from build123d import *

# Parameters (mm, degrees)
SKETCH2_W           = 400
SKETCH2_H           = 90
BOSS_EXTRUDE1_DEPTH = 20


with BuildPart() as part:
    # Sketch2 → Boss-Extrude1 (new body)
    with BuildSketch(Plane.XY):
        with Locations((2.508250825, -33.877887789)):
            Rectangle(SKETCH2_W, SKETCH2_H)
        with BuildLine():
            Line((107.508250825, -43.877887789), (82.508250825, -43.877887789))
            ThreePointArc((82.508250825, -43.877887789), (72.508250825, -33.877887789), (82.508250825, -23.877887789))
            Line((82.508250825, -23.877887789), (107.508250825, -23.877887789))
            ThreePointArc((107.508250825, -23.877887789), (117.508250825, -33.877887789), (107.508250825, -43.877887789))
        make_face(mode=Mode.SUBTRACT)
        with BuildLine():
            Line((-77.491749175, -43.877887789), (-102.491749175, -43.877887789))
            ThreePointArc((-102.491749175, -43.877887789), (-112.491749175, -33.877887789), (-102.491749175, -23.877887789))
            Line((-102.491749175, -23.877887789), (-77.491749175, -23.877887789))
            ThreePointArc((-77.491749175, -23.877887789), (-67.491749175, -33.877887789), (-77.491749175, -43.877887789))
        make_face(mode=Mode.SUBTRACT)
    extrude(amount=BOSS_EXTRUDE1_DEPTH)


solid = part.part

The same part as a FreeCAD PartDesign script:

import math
import FreeCAD as App
import Part
import Sketcher


def add_polygon(sketch, points):
    """Adds a closed chain of lines whose ends are joined by coincident constraints."""
    first, n = sketch.GeometryCount, len(points)
    for a, b in zip(points, points[1:] + points[:1]):
        sketch.addGeometry(Part.LineSegment(App.Vector(*a, 0), App.Vector(*b, 0)), False)
    for i in range(n):
        sketch.addConstraint(Sketcher.Constraint("Coincident", first + i, 2, first + (i + 1) % n, 1))

doc = App.newDocument("Part")
params = doc.addObject("Spreadsheet::Sheet", "Params")
for row, (alias, value) in enumerate([
    ("sketch1_radius", "10 mm"),
    ("sketch1_width", "400 mm"),
    ("sketch1_width2", "25 mm"),
    ("sketch1_height", "90 mm"),
    ("pad1_length", "20 mm"),
], start=1):
    params.set(f"A{row}", alias)
    params.set(f"B{row}", "=" + value)
    params.setAlias(f"B{row}", alias)

body = doc.addObject("PartDesign::Body", "Body")

# Sketch on XY plane
sketch1 = body.newObject("Sketcher::SketchObject", "Sketch")
sketch1.AttachmentSupport = (doc.getObject("XY_Plane"), [""])
sketch1.MapMode = "FlatFace"
add_polygon(sketch1, [(-197.491749, 11.122112), (-197.491749, -78.877888), (202.508251, -78.877888), (202.508251, 11.122112)])  # lines 0-3
sketch1.addGeometry(Part.ArcOfCircle(Part.Circle(App.Vector(-77.491749, -33.877888, 0), App.Vector(0, 0, 1), 10), math.radians(-90), math.radians(90)), False)  # 4
sketch1.addGeometry(Part.LineSegment(App.Vector(-77.491749, -43.877888, 0), App.Vector(-102.491749, -43.877888, 0)), False)  # 5
sketch1.addGeometry(Part.ArcOfCircle(Part.Circle(App.Vector(-102.491749, -33.877888, 0), App.Vector(0, 0, 1), 10), math.radians(90), math.radians(270)), False)  # 6
sketch1.addGeometry(Part.LineSegment(App.Vector(-102.491749, -23.877888, 0), App.Vector(-77.491749, -23.877888, 0)), False)  # 7
sketch1.addGeometry(Part.ArcOfCircle(Part.Circle(App.Vector(107.508251, -33.877888, 0), App.Vector(0, 0, 1), 10), math.radians(-90), math.radians(90)), False)  # 8
sketch1.addGeometry(Part.LineSegment(App.Vector(107.508251, -43.877888, 0), App.Vector(82.508251, -43.877888, 0)), False)  # 9
sketch1.addGeometry(Part.ArcOfCircle(Part.Circle(App.Vector(82.508251, -33.877888, 0), App.Vector(0, 0, 1), 10), math.radians(90), math.radians(270)), False)  # 10
sketch1.addGeometry(Part.LineSegment(App.Vector(82.508251, -23.877888, 0), App.Vector(107.508251, -23.877888, 0)), False)  # 11
sketch1.addConstraint([
    Sketcher.Constraint("Tangent", 4, 1, 5, 1),
    Sketcher.Constraint("Tangent", 5, 2, 6, 2),
    Sketcher.Constraint("Tangent", 6, 1, 7, 1),
    Sketcher.Constraint("Tangent", 7, 2, 4, 2),
    Sketcher.Constraint("Tangent", 8, 1, 9, 1),
    Sketcher.Constraint("Tangent", 9, 2, 10, 2),
    Sketcher.Constraint("Tangent", 10, 1, 11, 1),
    Sketcher.Constraint("Tangent", 11, 2, 8, 2),
    Sketcher.Constraint("Vertical", 0),
    Sketcher.Constraint("Horizontal", 1),
    Sketcher.Constraint("Vertical", 2),
    Sketcher.Constraint("Horizontal", 3),
    Sketcher.Constraint("Horizontal", 5),
    Sketcher.Constraint("Horizontal", 7),
    Sketcher.Constraint("Horizontal", 9),
    Sketcher.Constraint("Horizontal", 11),
    Sketcher.Constraint("Equal", 6, 8),
    Sketcher.Constraint("Horizontal", 6, 3, 8, 3),
    Sketcher.Constraint("Equal", 7, 9),
    Sketcher.Constraint("Radius", 4, 10.0),
    Sketcher.Constraint("DistanceX", 1, 1, 1, 2, 400.0),
    Sketcher.Constraint("DistanceX", 5, 2, 5, 1, 25.0),
    Sketcher.Constraint("DistanceY", 0, 2, 0, 1, 90.0),
    Sketcher.Constraint("DistanceX", 4, 3, 8, 3, 185.0),
    Sketcher.Constraint("DistanceX", 0, 2, 6, 3, 95.0),
    Sketcher.Constraint("DistanceY", 0, 2, 6, 3, 45.0),
    Sketcher.Constraint("DistanceX", 4, 3, -1, 1, 77.491749),
    Sketcher.Constraint("DistanceY", 4, 3, -1, 1, 33.877888),
])
sketch1.setExpression("Constraints[23]", "Params.sketch1_radius")
sketch1.setExpression("Constraints[24]", "Params.sketch1_width")
sketch1.setExpression("Constraints[25]", "Params.sketch1_width2")
sketch1.setExpression("Constraints[26]", "Params.sketch1_height")
pad1 = body.newObject("PartDesign::Pad", "Pad")
pad1.Profile = sketch1
pad1.setExpression("Length", "Params.pad1_length")

doc.recompute()
